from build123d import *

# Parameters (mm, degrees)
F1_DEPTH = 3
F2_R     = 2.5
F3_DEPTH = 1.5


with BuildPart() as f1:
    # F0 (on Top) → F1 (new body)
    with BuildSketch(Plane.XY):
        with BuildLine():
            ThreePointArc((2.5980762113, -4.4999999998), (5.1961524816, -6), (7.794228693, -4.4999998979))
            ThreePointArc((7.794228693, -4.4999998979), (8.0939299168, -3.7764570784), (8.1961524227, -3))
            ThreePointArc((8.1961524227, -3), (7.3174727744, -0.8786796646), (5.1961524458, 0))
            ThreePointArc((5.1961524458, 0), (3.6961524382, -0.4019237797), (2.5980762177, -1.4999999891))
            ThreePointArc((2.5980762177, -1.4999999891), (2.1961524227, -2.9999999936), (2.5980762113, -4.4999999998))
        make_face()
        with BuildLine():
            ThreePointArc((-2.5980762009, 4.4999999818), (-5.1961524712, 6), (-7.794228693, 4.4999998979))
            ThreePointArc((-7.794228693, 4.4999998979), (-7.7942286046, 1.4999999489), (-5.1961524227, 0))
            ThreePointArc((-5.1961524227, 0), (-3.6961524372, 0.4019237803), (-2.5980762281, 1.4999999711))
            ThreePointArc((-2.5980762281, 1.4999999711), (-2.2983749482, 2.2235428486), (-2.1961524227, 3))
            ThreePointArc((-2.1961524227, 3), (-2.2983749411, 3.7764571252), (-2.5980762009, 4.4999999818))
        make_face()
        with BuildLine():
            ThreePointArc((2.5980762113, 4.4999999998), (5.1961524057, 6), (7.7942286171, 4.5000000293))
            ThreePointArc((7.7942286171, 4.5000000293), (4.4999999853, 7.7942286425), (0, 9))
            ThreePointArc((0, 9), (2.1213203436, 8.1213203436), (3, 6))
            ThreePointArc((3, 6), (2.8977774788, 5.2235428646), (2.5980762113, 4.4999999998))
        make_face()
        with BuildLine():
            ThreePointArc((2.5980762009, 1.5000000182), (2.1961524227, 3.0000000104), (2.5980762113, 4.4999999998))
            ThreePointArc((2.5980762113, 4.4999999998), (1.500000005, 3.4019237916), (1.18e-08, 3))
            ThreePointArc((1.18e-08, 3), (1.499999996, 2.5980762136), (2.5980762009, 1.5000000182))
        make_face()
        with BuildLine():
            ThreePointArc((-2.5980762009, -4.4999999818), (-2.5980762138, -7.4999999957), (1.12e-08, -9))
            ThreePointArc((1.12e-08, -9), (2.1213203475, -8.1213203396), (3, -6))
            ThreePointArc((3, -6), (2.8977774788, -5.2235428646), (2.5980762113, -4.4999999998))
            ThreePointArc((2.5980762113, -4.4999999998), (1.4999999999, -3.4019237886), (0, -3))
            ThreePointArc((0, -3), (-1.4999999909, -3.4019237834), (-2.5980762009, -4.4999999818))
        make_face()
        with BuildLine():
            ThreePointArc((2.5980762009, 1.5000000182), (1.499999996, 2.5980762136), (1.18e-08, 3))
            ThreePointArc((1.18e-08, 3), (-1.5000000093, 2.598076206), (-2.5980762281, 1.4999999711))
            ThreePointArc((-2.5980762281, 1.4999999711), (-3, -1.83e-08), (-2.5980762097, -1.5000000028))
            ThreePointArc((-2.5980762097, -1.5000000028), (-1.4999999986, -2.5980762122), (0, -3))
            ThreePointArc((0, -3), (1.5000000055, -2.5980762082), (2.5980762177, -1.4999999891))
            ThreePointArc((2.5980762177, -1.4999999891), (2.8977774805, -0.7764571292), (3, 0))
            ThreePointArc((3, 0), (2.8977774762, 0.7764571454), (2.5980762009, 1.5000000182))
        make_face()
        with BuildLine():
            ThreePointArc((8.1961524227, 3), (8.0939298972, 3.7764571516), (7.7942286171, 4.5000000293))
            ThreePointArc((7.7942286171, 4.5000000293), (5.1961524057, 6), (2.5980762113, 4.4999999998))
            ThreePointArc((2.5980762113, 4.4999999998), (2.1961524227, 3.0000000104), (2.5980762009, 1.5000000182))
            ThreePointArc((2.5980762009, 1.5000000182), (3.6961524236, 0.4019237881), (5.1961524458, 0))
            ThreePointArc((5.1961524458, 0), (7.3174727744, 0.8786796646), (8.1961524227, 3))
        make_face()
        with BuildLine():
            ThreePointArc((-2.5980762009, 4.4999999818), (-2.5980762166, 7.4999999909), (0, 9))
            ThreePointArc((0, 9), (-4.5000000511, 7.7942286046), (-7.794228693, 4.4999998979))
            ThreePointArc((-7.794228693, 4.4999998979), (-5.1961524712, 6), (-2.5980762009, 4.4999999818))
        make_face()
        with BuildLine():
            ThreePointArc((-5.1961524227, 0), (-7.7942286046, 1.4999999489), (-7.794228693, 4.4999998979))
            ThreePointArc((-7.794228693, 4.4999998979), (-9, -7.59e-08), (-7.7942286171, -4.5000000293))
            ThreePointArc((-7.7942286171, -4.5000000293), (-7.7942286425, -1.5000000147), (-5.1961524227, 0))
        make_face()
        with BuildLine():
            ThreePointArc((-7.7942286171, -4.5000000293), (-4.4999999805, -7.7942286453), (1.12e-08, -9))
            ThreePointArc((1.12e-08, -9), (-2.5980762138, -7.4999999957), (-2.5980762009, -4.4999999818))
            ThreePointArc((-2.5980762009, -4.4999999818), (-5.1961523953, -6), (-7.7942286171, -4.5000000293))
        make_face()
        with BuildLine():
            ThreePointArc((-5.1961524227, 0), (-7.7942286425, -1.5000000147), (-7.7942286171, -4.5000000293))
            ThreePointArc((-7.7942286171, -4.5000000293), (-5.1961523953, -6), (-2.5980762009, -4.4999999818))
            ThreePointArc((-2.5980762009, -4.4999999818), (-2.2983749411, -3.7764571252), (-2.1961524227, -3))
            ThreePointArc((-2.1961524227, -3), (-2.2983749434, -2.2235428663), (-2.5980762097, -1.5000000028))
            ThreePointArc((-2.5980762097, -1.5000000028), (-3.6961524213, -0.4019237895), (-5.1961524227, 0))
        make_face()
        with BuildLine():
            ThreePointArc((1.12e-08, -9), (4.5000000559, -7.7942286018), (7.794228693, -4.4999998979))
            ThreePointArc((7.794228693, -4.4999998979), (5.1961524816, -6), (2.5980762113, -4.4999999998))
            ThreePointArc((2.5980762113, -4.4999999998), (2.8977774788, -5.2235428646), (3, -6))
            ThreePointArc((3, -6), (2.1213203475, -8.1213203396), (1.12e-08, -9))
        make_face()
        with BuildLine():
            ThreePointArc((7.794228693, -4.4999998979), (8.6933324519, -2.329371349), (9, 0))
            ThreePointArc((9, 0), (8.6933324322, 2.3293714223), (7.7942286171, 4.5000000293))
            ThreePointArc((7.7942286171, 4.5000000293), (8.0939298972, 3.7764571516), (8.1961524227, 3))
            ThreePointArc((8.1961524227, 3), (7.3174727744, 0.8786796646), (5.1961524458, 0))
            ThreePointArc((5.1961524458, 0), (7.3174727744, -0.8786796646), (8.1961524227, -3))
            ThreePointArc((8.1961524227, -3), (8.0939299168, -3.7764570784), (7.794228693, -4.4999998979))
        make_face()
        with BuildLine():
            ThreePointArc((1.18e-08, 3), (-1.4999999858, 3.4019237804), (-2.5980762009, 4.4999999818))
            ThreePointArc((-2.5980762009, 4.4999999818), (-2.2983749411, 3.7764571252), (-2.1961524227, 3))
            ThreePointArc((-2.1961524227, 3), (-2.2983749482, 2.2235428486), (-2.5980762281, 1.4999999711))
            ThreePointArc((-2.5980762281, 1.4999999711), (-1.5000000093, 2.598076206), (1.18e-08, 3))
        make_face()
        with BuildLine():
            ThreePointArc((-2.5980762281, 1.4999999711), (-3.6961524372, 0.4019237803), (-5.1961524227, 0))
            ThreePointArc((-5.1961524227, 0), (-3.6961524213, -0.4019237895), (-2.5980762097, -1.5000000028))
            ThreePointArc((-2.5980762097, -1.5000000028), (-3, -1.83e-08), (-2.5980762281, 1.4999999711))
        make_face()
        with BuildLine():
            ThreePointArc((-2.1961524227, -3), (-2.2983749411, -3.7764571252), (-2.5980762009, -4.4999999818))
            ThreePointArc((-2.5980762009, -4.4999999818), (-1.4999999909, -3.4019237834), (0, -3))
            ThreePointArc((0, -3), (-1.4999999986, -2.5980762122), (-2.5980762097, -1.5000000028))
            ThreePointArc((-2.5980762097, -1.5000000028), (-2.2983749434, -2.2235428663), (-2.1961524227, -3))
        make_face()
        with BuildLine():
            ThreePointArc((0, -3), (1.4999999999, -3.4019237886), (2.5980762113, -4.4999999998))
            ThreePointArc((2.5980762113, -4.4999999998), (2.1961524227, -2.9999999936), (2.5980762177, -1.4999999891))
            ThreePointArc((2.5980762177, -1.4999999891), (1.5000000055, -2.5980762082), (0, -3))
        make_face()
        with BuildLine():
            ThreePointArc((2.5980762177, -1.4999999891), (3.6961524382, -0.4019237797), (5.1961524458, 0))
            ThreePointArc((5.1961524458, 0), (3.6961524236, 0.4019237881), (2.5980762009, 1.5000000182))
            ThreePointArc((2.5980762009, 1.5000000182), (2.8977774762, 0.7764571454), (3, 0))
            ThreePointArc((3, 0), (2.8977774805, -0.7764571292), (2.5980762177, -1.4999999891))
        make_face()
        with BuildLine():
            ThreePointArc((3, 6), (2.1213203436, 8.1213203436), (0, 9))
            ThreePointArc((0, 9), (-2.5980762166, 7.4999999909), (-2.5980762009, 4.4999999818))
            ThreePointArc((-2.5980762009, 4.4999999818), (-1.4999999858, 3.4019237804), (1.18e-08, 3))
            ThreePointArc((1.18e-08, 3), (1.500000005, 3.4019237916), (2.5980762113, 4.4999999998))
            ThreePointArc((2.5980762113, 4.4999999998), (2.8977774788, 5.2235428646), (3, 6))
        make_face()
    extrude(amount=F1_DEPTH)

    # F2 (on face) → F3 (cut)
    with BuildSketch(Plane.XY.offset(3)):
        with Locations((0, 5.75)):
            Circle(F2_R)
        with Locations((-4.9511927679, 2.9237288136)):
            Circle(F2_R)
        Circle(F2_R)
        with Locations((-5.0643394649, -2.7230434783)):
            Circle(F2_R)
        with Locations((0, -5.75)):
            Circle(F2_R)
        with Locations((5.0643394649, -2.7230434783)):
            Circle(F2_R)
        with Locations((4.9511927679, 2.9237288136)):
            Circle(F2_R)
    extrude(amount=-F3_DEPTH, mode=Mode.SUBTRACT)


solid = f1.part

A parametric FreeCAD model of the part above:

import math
import FreeCAD as App
import Part
import Sketcher

V = App.Vector

doc = App.newDocument("Part")
body = doc.addObject("PartDesign::Body", "Body")

sketch1 = body.newObject("Sketcher::SketchObject", "Sketch")
sketch1.AttachmentSupport = (doc.getObject("XY_Plane"), [""])
sketch1.MapMode = "FlatFace"
sketch1.addGeometry([
    Part.ArcOfCircle(Part.Circle(V(0, 0, 0), V(0, 0, 1), 9), math.radians(30), math.radians(90)),
    Part.ArcOfCircle(Part.Circle(V(0, 0, 0), V(0, 0, 1), 9), math.radians(90), math.radians(150)),
    Part.ArcOfCircle(Part.Circle(V(0, 0, 0), V(0, 0, 1), 9), math.radians(150), math.radians(210)),
    Part.ArcOfCircle(Part.Circle(V(0, 0, 0), V(0, 0, 1), 9), math.radians(-150), math.radians(-90)),
    Part.ArcOfCircle(Part.Circle(V(0, 0, 0), V(0, 0, 1), 9), math.radians(-90), math.radians(-30)),
    Part.ArcOfCircle(Part.Circle(V(0, 0, 0), V(0, 0, 1), 9), math.radians(-30), math.radians(0)),
    Part.ArcOfCircle(Part.Circle(V(0, 0, 0), V(0, 0, 1), 9), math.radians(0), math.radians(30)),
], False)
sketch1.addConstraint([
    Sketcher.Constraint("Tangent", 0, 2, 1, 1),
    Sketcher.Constraint("Tangent", 1, 2, 2, 1),
    Sketcher.Constraint("Tangent", 2, 2, 3, 1),
    Sketcher.Constraint("Tangent", 3, 2, 4, 1),
    Sketcher.Constraint("Tangent", 4, 2, 5, 1),
    Sketcher.Constraint("Tangent", 5, 2, 6, 1),
    Sketcher.Constraint("Tangent", 6, 2, 0, 1),
    Sketcher.Constraint("Coincident", 0, 3, -1, 1),
    Sketcher.Constraint("Coincident", 2, 3, -1, 1),
    Sketcher.Constraint("Coincident", 4, 3, -1, 1),
    Sketcher.Constraint("PointOnObject", 0, 2, -2),
    Sketcher.Constraint("PointOnObject", 3, 2, -2),
    Sketcher.Constraint("PointOnObject", 5, 2, -1),
    Sketcher.Constraint("Horizontal", 2, 2, 4, 2),
    Sketcher.Constraint("Horizontal", 1, 2, 6, 2),
    Sketcher.Constraint("Vertical", 1, 2, 2, 2),
    Sketcher.Constraint("Radius", 0, 9.0),
    Sketcher.Constraint("DistanceY", 2, 2, 1, 2, 9.0),
])
pad1 = body.newObject("PartDesign::Pad", "Pad")
pad1.Profile = sketch1
pad1.Length = 3

sketch2 = body.newObject("Sketcher::SketchObject", "Sketch001")
sketch2.AttachmentSupport = (doc.getObject("XY_Plane"), [""])
sketch2.MapMode = "FlatFace"
sketch2.AttachmentOffset = App.Placement(V(0, 0, 3), App.Rotation())
sketch2.addGeometry([
    Part.Circle(V(0, 5.8, 0), V(0, 0, 1), 2.5),
    Part.Circle(V(-5, 2.9, 0), V(0, 0, 1), 2.5),
    Part.Circle(V(0, 0, 0), V(0, 0, 1), 2.5),
    Part.Circle(V(-5.1, -2.7, 0), V(0, 0, 1), 2.5),
    Part.Circle(V(0, -5.8, 0), V(0, 0, 1), 2.5),
    Part.Circle(V(5.1, -2.7, 0), V(0, 0, 1), 2.5),
    Part.Circle(V(5, 2.9, 0), V(0, 0, 1), 2.5),
], False)
sketch2.addConstraint([
    Sketcher.Constraint("Coincident", 2, 3, -1, 1),
    Sketcher.Constraint("Equal", 0, 1),
    Sketcher.Constraint("Equal", 1, 2),
    Sketcher.Constraint("Equal", 2, 3),
    Sketcher.Constraint("Equal", 3, 4),
    Sketcher.Constraint("Equal", 4, 5),
    Sketcher.Constraint("Equal", 5, 6),
    Sketcher.Constraint("Symmetric", 0, 3, 4, 3, -1, 1),
    Sketcher.Constraint("Symmetric", 3, 3, 5, 3, -2),
    Sketcher.Constraint("Symmetric", 1, 3, 6, 3, -2),
    Sketcher.Constraint("PointOnObject", 0, 3, -2),
    Sketcher.Constraint("Diameter", 0, 5.0),
    Sketcher.Constraint("DistanceY", 4, 3, 0, 3, 11.5),
    Sketcher.Constraint("DistanceY", -1, 1, 1, 3, 2.923729),
    Sketcher.Constraint("DistanceX", 3, 3, -1, 1, 5.064339),
    Sketcher.Constraint("DistanceX", 1, 3, -1, 1, 4.951193),
    Sketcher.Constraint("DistanceY", 3, 3, -1, 1, 2.723043),
])
pocket1 = body.newObject("PartDesign::Pocket", "Pocket")
pocket1.Profile = sketch2
pocket1.Length = 1.5

doc.recompute()
